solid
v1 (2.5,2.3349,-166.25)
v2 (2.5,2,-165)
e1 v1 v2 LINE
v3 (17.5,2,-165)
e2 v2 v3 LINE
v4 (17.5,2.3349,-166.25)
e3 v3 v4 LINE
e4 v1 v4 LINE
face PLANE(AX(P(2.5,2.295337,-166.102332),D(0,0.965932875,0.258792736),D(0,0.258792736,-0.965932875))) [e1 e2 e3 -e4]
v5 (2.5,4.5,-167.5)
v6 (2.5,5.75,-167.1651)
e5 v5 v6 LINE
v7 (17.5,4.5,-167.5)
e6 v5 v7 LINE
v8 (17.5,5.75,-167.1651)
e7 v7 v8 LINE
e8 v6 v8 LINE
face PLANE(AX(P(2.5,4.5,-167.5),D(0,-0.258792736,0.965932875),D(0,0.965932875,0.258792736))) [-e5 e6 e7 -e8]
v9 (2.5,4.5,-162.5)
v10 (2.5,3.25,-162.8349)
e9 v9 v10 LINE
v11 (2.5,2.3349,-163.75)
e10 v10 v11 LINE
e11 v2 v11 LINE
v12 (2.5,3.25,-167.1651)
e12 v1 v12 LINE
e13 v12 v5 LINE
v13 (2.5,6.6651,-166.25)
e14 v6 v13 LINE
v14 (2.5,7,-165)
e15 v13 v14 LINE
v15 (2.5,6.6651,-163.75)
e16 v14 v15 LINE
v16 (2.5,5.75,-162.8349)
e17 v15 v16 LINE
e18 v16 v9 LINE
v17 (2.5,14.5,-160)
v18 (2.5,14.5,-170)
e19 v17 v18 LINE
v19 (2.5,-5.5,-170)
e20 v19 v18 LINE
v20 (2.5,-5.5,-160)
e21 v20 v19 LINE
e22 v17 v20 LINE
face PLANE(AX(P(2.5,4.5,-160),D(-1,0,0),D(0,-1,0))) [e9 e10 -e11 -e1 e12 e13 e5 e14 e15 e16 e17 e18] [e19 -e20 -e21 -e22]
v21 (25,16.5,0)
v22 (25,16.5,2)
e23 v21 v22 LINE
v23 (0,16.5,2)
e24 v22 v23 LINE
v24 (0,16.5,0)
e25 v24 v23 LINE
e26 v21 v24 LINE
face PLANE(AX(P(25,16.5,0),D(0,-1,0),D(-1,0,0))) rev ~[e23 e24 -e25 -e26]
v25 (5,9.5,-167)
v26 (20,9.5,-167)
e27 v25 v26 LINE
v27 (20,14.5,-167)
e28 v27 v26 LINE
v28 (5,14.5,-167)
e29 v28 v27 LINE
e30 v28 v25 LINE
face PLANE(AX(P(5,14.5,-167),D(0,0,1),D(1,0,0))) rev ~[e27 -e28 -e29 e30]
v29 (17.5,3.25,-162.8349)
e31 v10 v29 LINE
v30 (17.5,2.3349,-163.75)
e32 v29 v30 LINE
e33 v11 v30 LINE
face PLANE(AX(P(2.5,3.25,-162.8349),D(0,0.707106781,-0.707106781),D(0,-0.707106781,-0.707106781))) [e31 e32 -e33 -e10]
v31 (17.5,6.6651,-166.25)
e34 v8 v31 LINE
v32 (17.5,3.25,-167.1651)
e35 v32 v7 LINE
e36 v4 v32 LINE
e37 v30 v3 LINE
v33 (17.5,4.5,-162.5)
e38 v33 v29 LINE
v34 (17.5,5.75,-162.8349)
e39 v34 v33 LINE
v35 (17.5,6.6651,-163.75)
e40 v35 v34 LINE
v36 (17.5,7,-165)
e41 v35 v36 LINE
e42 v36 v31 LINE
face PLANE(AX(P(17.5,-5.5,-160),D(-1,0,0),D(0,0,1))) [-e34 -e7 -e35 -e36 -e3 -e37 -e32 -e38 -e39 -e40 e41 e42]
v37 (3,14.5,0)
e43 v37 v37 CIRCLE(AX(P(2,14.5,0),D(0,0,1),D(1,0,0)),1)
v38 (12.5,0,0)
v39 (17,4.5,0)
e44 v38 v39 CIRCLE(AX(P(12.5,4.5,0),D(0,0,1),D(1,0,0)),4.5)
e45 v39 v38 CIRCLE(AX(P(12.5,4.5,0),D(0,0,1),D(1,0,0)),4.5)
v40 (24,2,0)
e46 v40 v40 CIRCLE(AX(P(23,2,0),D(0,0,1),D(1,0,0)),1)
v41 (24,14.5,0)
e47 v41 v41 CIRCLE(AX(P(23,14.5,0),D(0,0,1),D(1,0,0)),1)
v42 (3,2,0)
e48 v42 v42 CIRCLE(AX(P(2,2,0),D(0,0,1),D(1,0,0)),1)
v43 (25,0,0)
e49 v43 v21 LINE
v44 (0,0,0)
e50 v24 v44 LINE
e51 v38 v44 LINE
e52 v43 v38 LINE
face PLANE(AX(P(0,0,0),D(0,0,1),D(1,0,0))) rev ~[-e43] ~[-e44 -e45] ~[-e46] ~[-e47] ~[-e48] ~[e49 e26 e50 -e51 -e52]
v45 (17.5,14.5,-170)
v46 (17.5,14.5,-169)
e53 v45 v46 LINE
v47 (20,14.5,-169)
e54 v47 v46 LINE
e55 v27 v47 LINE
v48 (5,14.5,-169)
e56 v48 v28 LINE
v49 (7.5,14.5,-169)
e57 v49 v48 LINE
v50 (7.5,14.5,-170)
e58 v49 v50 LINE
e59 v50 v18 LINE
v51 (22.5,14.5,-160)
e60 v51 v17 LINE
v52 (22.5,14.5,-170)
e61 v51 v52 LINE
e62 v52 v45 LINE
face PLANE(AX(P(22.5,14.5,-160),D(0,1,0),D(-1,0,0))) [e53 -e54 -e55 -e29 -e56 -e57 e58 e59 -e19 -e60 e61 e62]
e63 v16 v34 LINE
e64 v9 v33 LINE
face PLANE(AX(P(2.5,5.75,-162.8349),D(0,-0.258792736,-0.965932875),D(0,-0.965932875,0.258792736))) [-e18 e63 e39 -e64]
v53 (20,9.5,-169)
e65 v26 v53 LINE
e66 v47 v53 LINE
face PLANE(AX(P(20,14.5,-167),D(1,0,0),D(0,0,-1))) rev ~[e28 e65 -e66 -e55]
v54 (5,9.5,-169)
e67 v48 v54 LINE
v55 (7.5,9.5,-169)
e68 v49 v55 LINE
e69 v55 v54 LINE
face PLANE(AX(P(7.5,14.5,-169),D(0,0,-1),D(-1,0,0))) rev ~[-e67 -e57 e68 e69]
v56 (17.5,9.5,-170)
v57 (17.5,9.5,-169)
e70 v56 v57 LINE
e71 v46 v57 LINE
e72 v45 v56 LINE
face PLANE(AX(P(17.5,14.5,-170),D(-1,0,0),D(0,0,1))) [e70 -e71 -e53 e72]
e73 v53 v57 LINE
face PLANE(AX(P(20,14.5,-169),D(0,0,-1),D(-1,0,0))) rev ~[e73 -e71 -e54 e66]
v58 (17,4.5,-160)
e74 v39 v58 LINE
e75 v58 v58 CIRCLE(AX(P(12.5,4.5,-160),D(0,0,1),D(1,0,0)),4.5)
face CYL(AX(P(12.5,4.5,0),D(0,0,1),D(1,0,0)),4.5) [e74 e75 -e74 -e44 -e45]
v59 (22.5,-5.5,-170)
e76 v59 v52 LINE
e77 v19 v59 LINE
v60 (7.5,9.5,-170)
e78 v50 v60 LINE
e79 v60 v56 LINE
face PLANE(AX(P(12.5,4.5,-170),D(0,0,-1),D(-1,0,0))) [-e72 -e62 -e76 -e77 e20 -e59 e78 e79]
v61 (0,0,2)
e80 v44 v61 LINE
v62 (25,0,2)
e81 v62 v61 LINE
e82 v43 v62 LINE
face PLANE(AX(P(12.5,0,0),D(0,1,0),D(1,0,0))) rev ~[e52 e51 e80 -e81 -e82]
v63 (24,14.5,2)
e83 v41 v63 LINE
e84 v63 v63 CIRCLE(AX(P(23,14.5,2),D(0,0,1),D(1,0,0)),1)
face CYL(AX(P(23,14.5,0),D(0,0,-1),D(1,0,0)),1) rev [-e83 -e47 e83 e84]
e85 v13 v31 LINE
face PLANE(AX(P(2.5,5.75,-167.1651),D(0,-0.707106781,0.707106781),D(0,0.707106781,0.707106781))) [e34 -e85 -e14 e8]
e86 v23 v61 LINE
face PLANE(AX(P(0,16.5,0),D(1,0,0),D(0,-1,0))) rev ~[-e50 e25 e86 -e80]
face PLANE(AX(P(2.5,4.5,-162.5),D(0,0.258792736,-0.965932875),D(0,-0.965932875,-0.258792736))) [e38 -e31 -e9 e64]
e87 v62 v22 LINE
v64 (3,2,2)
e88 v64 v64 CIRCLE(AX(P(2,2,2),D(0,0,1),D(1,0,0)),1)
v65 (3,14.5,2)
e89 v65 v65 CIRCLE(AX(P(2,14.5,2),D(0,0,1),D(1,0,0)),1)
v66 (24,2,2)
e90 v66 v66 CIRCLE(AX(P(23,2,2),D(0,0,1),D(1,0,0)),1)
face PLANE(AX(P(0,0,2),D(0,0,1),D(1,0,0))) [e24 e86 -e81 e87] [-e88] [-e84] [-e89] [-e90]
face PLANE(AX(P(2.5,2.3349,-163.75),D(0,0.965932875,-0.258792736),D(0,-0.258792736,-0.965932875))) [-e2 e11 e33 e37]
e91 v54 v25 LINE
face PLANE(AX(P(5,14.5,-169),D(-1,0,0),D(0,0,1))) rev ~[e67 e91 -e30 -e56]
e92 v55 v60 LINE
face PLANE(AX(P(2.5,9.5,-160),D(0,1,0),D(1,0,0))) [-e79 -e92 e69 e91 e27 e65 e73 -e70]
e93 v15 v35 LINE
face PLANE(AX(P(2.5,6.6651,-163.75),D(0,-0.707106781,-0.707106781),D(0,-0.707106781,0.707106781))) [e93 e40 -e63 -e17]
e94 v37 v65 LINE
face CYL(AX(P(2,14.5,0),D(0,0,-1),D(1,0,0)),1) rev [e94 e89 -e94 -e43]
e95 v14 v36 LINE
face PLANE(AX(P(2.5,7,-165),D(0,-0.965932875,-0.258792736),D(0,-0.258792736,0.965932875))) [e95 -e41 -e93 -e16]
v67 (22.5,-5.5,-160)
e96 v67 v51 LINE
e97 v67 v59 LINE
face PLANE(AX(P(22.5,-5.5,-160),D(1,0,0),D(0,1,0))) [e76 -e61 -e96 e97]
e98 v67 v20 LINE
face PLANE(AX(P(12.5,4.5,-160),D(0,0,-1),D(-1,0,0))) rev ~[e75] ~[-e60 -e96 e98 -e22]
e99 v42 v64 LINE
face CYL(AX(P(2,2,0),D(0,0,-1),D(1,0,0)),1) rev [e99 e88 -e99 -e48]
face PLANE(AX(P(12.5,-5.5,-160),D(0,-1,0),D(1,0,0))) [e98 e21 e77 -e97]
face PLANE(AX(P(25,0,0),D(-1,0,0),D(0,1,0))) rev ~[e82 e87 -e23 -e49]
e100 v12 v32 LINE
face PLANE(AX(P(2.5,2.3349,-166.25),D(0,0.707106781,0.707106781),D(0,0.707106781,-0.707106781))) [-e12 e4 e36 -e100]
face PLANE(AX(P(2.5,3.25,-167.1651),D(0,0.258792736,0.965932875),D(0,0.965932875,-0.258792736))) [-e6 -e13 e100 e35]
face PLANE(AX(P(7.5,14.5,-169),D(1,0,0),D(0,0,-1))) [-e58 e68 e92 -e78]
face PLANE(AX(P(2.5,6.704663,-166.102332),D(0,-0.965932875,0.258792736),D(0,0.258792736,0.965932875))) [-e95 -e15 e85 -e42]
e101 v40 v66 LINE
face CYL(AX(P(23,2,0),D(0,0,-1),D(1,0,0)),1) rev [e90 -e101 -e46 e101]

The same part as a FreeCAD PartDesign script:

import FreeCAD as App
import Part
import Sketcher
Q = App.Units.Quantity

doc = App.newDocument("Part")
body = doc.addObject("PartDesign::Body", "Body")

# Sketch on XY plane
sketch1 = body.newObject("Sketcher::SketchObject", "Sketch")
sketch1.AttachmentSupport = (doc.getObject("XY_Plane"), [""])
sketch1.MapMode = "FlatFace"
sketch1.addGeometry([
    Part.LineSegment(App.Vector(0, 16.5, 0), App.Vector(0, 0, 0)),  # 0
    Part.LineSegment(App.Vector(0, 0, 0), App.Vector(25, 0, 0)),  # 1
    Part.LineSegment(App.Vector(25, 0, 0), App.Vector(25, 16.5, 0)),  # 2
    Part.LineSegment(App.Vector(25, 16.5, 0), App.Vector(0, 16.5, 0)),  # 3
    Part.Circle(App.Vector(2, 2, 0), App.Vector(0, 0, 1), 1),  # 4
    Part.Circle(App.Vector(23, 2, 0), App.Vector(0, 0, 1), 1),  # 5
    Part.Circle(App.Vector(2, 14.5, 0), App.Vector(0, 0, 1), 1),  # 6
    Part.Circle(App.Vector(23, 14.5, 0), App.Vector(0, 0, 1), 1),  # 7
], False)
sketch1.addConstraint([
    Sketcher.Constraint("Coincident", 0, 2, 1, 1),
    Sketcher.Constraint("Coincident", 1, 2, 2, 1),
    Sketcher.Constraint("Coincident", 2, 2, 3, 1),
    Sketcher.Constraint("Coincident", 3, 2, 0, 1),
    Sketcher.Constraint("Vertical", 0),
    Sketcher.Constraint("Horizontal", 1),
    Sketcher.Constraint("Vertical", 2),
    Sketcher.Constraint("Horizontal", 3),
    Sketcher.Constraint("Coincident", 0, 2, -1, 1),
    Sketcher.Constraint("Equal", 4, 5),
    Sketcher.Constraint("Equal", 5, 6),
    Sketcher.Constraint("Equal", 6, 7),
    Sketcher.Constraint("Horizontal", 4, 3, 5, 3),
    Sketcher.Constraint("Horizontal", 6, 3, 7, 3),
    Sketcher.Constraint("Vertical", 4, 3, 6, 3),
    Sketcher.Constraint("Vertical", 5, 3, 7, 3),
    Sketcher.Constraint("Diameter", 4, Q("2 mm")),
    Sketcher.Constraint("DistanceX", 1, 1, 1, 2, Q("25 mm")),
    Sketcher.Constraint("DistanceY", 0, 2, 0, 1, Q("16.5 mm")),
    Sketcher.Constraint("DistanceX", -1, 1, 4, 3, Q("2 mm")),
    Sketcher.Constraint("DistanceY", -1, 1, 4, 3, Q("2 mm")),
    Sketcher.Constraint("DistanceX", 5, 3, 1, 2, Q("2 mm")),
    Sketcher.Constraint("DistanceY", 7, 3, 2, 2, Q("2 mm")),
])
pad1 = body.newObject("PartDesign::Pad", "Pad")
pad1.Profile = sketch1
pad1.Length = 2

# Sketch on XY plane
sketch2 = body.newObject("Sketcher::SketchObject", "Sketch001")
sketch2.AttachmentSupport = (doc.getObject("XY_Plane"), [""])
sketch2.MapMode = "FlatFace"
sketch2.addGeometry(Part.Circle(App.Vector(12.5, 4.5, 0), App.Vector(0, 0, 1), 4.5), False)
sketch2.addConstraint([
    Sketcher.Constraint("Diameter", 0, Q("9 mm")),
    Sketcher.Constraint("DistanceX", -1, 1, 0, 3, Q("12.5 mm")),
    Sketcher.Constraint("DistanceY", -1, 1, 0, 3, Q("4.5 mm")),
])
pad2 = body.newObject("PartDesign::Pad", "Pad001")
pad2.Profile = sketch2
pad2.Length = 160
pad2.Reversed = True

# Sketch on XY plane
sketch3 = body.newObject("Sketcher::SketchObject", "Sketch002")
sketch3.AttachmentSupport = (doc.getObject("XY_Plane"), [""])
sketch3.MapMode = "FlatFace"
sketch3.AttachmentOffset = App.Placement(App.Vector(0, 0, -160), App.Rotation())
sketch3.addGeometry([
    Part.LineSegment(App.Vector(22.5, -5.5, 0), App.Vector(2.5, -5.5, 0)),
    Part.LineSegment(App.Vector(2.5, -5.5, 0), App.Vector(2.5, 14.5, 0)),
    Part.LineSegment(App.Vector(2.5, 14.5, 0), App.Vector(22.5, 14.5, 0)),
    Part.LineSegment(App.Vector(22.5, 14.5, 0), App.Vector(22.5, -5.5, 0)),
], False)
sketch3.addConstraint([
    Sketcher.Constraint("Coincident", 0, 2, 1, 1),
    Sketcher.Constraint("Coincident", 1, 2, 2, 1),
    Sketcher.Constraint("Coincident", 2, 2, 3, 1),
    Sketcher.Constraint("Coincident", 3, 2, 0, 1),
    Sketcher.Constraint("Horizontal", 0),
    Sketcher.Constraint("Vertical", 1),
    Sketcher.Constraint("Horizontal", 2),
    Sketcher.Constraint("Vertical", 3),
    Sketcher.Constraint("Equal", 2, 1),
    Sketcher.Constraint("DistanceX", 0, 2, 0, 1, Q("20 mm")),
    Sketcher.Constraint("DistanceX", -1, 1, 0, 2, Q("2.5 mm")),
    Sketcher.Constraint("DistanceY", 0, 2, -1, 1, Q("5.5 mm")),
])
pad3 = body.newObject("PartDesign::Pad", "Pad002")
pad3.Profile = sketch3
pad3.Length = 10
pad3.Reversed = True

# Sketch on YZ plane
sketch4 = body.newObject("Sketcher::SketchObject", "Sketch003")
sketch4.AttachmentSupport = (doc.getObject("YZ_Plane"), [""])
sketch4.MapMode = "FlatFace"
sketch4.AttachmentOffset = App.Placement(App.Vector(0, 0, 2.5), App.Rotation())
sketch4.addGeometry([
    Part.LineSegment(App.Vector(7, -165, 0), App.Vector(6.6651, -166.25, 0)),  # 0
    Part.LineSegment(App.Vector(6.6651, -166.25, 0), App.Vector(5.75, -167.1651, 0)),  # 1
    Part.LineSegment(App.Vector(5.75, -167.1651, 0), App.Vector(4.5, -167.5, 0)),  # 2
    Part.LineSegment(App.Vector(4.5, -167.5, 0), App.Vector(3.25, -167.1651, 0)),  # 3
    Part.LineSegment(App.Vector(3.25, -167.1651, 0), App.Vector(2.3349, -166.25, 0)),  # 4
    Part.LineSegment(App.Vector(2.3349, -166.25, 0), App.Vector(2, -165, 0)),  # 5
    Part.LineSegment(App.Vector(2, -165, 0), App.Vector(2.3349, -163.75, 0)),  # 6
    Part.LineSegment(App.Vector(2.3349, -163.75, 0), App.Vector(3.25, -162.8349, 0)),  # 7
    Part.LineSegment(App.Vector(3.25, -162.8349, 0), App.Vector(4.5, -162.5, 0)),  # 8
    Part.LineSegment(App.Vector(4.5, -162.5, 0), App.Vector(5.75, -162.8349, 0)),  # 9
    Part.LineSegment(App.Vector(5.75, -162.8349, 0), App.Vector(6.6651, -163.75, 0)),  # 10
    Part.LineSegment(App.Vector(6.6651, -163.75, 0), App.Vector(7, -165, 0)),  # 11
], False)
sketch4.addConstraint([
    Sketcher.Constraint("Coincident", 0, 2, 1, 1),
    Sketcher.Constraint("Coincident", 1, 2, 2, 1),
    Sketcher.Constraint("Coincident", 2, 2, 3, 1),
    Sketcher.Constraint("Coincident", 3, 2, 4, 1),
    Sketcher.Constraint("Coincident", 4, 2, 5, 1),
    Sketcher.Constraint("Coincident", 5, 2, 6, 1),
    Sketcher.Constraint("Coincident", 6, 2, 7, 1),
    Sketcher.Constraint("Coincident", 7, 2, 8, 1),
    Sketcher.Constraint("Coincident", 8, 2, 9, 1),
    Sketcher.Constraint("Coincident", 9, 2, 10, 1),
    Sketcher.Constraint("Coincident", 10, 2, 11, 1),
    Sketcher.Constraint("Coincident", 11, 2, 0, 1),
    Sketcher.Constraint("Perpendicular", 0, 3),
    Sketcher.Constraint("Perpendicular", 1, 4),
    Sketcher.Constraint("Perpendicular", 2, 5),
    Sketcher.Constraint("Perpendicular", 3, 6),
    Sketcher.Constraint("Perpendicular", 4, 7),
    Sketcher.Constraint("Perpendicular", 5, 8),
    Sketcher.Constraint("Perpendicular", 6, 9),
    Sketcher.Constraint("Perpendicular", 7, 10),
    Sketcher.Constraint("Perpendicular", 8, 11),
    Sketcher.Constraint("Horizontal", 1, 2, 3, 2),
    Sketcher.Constraint("Horizontal", 0, 2, 4, 2),
    Sketcher.Constraint("Horizontal", 7, 2, 9, 2),
    Sketcher.Constraint("Horizontal", 6, 2, 10, 2),
    Sketcher.Constraint("Horizontal", 5, 2, 11, 2),
    Sketcher.Constraint("Vertical", 4, 2, 6, 2),
    Sketcher.Constraint("Vertical", 3, 2, 7, 2),
    Sketcher.Constraint("Vertical", 2, 2, 8, 2),
    Sketcher.Constraint("Vertical", 1, 2, 9, 2),
    Sketcher.Constraint("Equal", 0, 1),
    Sketcher.Constraint("Equal", 1, 2),
    Sketcher.Constraint("DistanceX", -1, 1, 5, 2, Q("2 mm")),
    Sketcher.Constraint("DistanceY", 5, 2, -1, 1, Q("165 mm")),
    Sketcher.Constraint("DistanceX", -1, 1, 11, 2, Q("7 mm")),
    Sketcher.Constraint("DistanceX", 3, 2, 1, 2, Q("2.5 mm")),
])
pocket1 = body.newObject("PartDesign::Pocket", "Pocket")
pocket1.Profile = sketch4
pocket1.Length = 15
pocket1.Reversed = True

# Sketch on XZ plane
sketch5 = body.newObject("Sketcher::SketchObject", "Sketch004")
sketch5.AttachmentSupport = (doc.getObject("XZ_Plane"), [""])
sketch5.MapMode = "FlatFace"
sketch5.AttachmentOffset = App.Placement(App.Vector(0, 0, -14.5), App.Rotation())
sketch5.addGeometry([
    Part.LineSegment(App.Vector(20, -167, 0), App.Vector(20, -169, 0)),  # 0
    Part.LineSegment(App.Vector(20, -169, 0), App.Vector(17.5, -169, 0)),  # 1
    Part.LineSegment(App.Vector(17.5, -169, 0), App.Vector(17.5, -170, 0)),  # 2
    Part.LineSegment(App.Vector(17.5, -170, 0), App.Vector(7.5, -170, 0)),  # 3
    Part.LineSegment(App.Vector(7.5, -170, 0), App.Vector(7.5, -169, 0)),  # 4
    Part.LineSegment(App.Vector(7.5, -169, 0), App.Vector(5, -169, 0)),  # 5
    Part.LineSegment(App.Vector(5, -169, 0), App.Vector(5, -167, 0)),  # 6
    Part.LineSegment(App.Vector(5, -167, 0), App.Vector(20, -167, 0)),  # 7
], False)
sketch5.addConstraint([
    Sketcher.Constraint("Coincident", 0, 2, 1, 1),
    Sketcher.Constraint("Coincident", 1, 2, 2, 1),
    Sketcher.Constraint("Coincident", 2, 2, 3, 1),
    Sketcher.Constraint("Coincident", 3, 2, 4, 1),
    Sketcher.Constraint("Coincident", 4, 2, 5, 1),
    Sketcher.Constraint("Coincident", 5, 2, 6, 1),
    Sketcher.Constraint("Coincident", 6, 2, 7, 1),
    Sketcher.Constraint("Coincident", 7, 2, 0, 1),
    Sketcher.Constraint("Vertical", 0),
    Sketcher.Constraint("Horizontal", 1),
    Sketcher.Constraint("Vertical", 2),
    Sketcher.Constraint("Horizontal", 3),
    Sketcher.Constraint("Vertical", 4),
    Sketcher.Constraint("Horizontal", 5),
    Sketcher.Constraint("Vertical", 6),
    Sketcher.Constraint("Horizontal", 7),
    Sketcher.Constraint("Horizontal", 1, 2, 4, 2),
    Sketcher.Constraint("Equal", 1, 5),
    Sketcher.Constraint("DistanceX", 3, 2, 3, 1, Q("10 mm")),
    Sketcher.Constraint("DistanceX", 7, 1, 7, 2, Q("15 mm")),
    Sketcher.Constraint("DistanceY", 0, 2, 0, 1, Q("2 mm")),
    Sketcher.Constraint("DistanceY", 2, 2, 2, 1, Q("1 mm")),
    Sketcher.Constraint("DistanceX", -1, 1, 0, 2, Q("20 mm")),
    Sketcher.Constraint("DistanceY", 0, 2, -1, 1, Q("169 mm")),
])
pocket2 = body.newObject("PartDesign::Pocket", "Pocket001")
pocket2.Profile = sketch5
pocket2.Length = 5
pocket2.Reversed = True

doc.recompute()
